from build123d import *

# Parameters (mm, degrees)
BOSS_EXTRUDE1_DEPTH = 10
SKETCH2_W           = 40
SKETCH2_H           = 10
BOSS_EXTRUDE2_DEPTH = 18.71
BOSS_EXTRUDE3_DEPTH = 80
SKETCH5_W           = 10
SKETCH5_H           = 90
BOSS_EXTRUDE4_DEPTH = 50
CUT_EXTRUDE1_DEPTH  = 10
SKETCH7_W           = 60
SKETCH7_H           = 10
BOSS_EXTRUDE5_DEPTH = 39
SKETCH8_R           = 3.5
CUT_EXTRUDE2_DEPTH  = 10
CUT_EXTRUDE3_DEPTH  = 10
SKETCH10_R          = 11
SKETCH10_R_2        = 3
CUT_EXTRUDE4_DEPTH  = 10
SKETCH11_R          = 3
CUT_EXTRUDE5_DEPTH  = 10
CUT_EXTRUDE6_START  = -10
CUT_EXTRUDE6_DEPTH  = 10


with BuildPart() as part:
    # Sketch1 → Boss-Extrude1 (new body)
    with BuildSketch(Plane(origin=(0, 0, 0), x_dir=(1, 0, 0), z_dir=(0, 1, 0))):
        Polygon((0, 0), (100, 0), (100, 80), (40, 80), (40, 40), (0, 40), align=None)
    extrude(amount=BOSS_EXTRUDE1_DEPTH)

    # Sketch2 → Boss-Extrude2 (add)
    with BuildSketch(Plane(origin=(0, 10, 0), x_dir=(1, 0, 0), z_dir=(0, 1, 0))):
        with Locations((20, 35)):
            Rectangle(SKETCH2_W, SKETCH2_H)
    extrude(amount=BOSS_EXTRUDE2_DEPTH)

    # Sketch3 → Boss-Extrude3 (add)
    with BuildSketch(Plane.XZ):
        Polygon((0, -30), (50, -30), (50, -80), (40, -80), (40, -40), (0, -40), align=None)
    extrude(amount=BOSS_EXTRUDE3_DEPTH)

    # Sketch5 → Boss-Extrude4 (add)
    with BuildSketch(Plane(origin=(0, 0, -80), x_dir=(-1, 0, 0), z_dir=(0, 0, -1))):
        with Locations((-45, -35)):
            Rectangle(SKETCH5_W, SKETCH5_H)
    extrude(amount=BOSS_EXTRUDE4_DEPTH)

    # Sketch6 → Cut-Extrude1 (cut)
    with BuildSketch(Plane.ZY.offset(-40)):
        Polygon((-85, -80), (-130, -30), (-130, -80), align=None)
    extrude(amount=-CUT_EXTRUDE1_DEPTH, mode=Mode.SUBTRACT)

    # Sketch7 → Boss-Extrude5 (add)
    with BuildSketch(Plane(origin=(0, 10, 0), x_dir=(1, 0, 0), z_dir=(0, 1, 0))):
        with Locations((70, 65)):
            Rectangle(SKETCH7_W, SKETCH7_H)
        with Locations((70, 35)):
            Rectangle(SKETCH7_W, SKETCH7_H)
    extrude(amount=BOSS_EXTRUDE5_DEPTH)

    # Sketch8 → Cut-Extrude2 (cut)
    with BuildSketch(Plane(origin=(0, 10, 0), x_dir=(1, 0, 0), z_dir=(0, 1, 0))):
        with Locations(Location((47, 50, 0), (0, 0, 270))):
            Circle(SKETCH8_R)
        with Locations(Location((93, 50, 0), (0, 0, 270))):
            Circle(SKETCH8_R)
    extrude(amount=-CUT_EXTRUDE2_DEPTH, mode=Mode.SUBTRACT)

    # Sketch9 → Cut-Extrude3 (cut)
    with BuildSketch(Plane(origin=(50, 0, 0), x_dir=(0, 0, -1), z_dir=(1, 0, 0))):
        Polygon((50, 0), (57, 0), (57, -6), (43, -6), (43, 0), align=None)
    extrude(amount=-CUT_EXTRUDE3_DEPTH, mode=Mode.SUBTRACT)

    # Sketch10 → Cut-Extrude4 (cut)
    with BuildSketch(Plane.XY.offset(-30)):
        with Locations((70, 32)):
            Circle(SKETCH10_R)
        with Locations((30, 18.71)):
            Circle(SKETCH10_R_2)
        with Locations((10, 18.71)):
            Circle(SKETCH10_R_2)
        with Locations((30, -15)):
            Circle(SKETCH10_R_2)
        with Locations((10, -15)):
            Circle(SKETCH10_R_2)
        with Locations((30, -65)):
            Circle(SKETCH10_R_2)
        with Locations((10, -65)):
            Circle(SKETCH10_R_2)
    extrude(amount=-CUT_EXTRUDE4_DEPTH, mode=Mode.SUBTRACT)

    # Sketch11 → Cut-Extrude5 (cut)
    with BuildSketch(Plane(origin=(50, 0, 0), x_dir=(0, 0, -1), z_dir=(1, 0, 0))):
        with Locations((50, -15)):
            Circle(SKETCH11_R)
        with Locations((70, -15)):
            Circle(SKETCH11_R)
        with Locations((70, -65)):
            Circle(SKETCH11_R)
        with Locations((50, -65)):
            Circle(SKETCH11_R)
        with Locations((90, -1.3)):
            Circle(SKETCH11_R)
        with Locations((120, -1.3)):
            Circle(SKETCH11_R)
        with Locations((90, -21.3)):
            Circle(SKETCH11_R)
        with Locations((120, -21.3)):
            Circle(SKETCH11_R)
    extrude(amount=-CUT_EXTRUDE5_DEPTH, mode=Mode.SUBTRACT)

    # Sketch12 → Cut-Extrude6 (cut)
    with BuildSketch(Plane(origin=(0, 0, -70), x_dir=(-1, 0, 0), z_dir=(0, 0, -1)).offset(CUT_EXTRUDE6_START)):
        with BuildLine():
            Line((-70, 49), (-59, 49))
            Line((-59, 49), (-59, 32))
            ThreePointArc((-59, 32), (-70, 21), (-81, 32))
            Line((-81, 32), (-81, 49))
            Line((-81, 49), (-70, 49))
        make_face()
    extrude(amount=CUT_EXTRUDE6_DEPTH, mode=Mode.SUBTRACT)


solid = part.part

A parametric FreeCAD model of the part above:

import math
import FreeCAD as App
import Part
import Sketcher

V = App.Vector


def add_polygon(sketch, points):
    """Adds a closed chain of lines whose ends are joined by coincident constraints."""
    first, n = sketch.GeometryCount, len(points)
    for a, b in zip(points, points[1:] + points[:1]):
        sketch.addGeometry(Part.LineSegment(App.Vector(*a, 0), App.Vector(*b, 0)), False)
    for i in range(n):
        sketch.addConstraint(Sketcher.Constraint("Coincident", first + i, 2, first + (i + 1) % n, 1))

doc = App.newDocument("Part")
body = doc.addObject("PartDesign::Body", "Body")

# Sketch on XZ plane
sketch1 = body.newObject("Sketcher::SketchObject", "Sketch")
sketch1.AttachmentSupport = (doc.getObject("XZ_Plane"), [""])
sketch1.MapMode = "FlatFace"
add_polygon(sketch1, [(0, 0), (100, 0), (100, -80), (40, -80), (40, -40), (0, -40)])  # lines 0-5
sketch1.addConstraint([
    Sketcher.Constraint("Horizontal", 0),
    Sketcher.Constraint("Vertical", 1),
    Sketcher.Constraint("Horizontal", 2),
    Sketcher.Constraint("Vertical", 3),
    Sketcher.Constraint("Horizontal", 4),
    Sketcher.Constraint("Vertical", 5),
    Sketcher.Constraint("Coincident", 5, 2, -1, 1),
    Sketcher.Constraint("Equal", 4, 3),
    Sketcher.Constraint("Equal", 3, 5),
    Sketcher.Constraint("DistanceX", 0, 1, 0, 2, 100.0),
    Sketcher.Constraint("DistanceX", 2, 2, 2, 1, 60.0),
])
pad1 = body.newObject("PartDesign::Pad", "Pad")
pad1.Profile = sketch1
pad1.Length = 10
pad1.Reversed = True

# Sketch on XZ plane
sketch2 = body.newObject("Sketcher::SketchObject", "Sketch001")
sketch2.AttachmentSupport = (doc.getObject("XZ_Plane"), [""])
sketch2.MapMode = "FlatFace"
sketch2.AttachmentOffset = App.Placement(V(0, 0, -10), App.Rotation())
add_polygon(sketch2, [(0, -40), (0, -30), (40, -30), (40, -40)])  # lines 0-3
sketch2.addConstraint([
    Sketcher.Constraint("Vertical", 0),
    Sketcher.Constraint("Horizontal", 1),
    Sketcher.Constraint("Vertical", 2),
    Sketcher.Constraint("Horizontal", 3),
    Sketcher.Constraint("PointOnObject", 0, 2, -2),
    Sketcher.Constraint("DistanceX", 1, 1, 1, 2, 40.0),
    Sketcher.Constraint("DistanceY", 0, 1, 0, 2, 10.0),
    Sketcher.Constraint("DistanceY", 0, 2, -1, 1, 30.0),
])
pad2 = body.newObject("PartDesign::Pad", "Pad001")
pad2.Profile = sketch2
pad2.Length = 18.71
pad2.Reversed = True

# Sketch on XZ plane
sketch3 = body.newObject("Sketcher::SketchObject", "Sketch002")
sketch3.AttachmentSupport = (doc.getObject("XZ_Plane"), [""])
sketch3.MapMode = "FlatFace"
add_polygon(sketch3, [(50, -30), (0, -30), (0, -40), (40, -40), (40, -80), (50, -80)])  # lines 0-5
sketch3.addConstraint([
    Sketcher.Constraint("Horizontal", 0),
    Sketcher.Constraint("Vertical", 1),
    Sketcher.Constraint("Horizontal", 2),
    Sketcher.Constraint("Vertical", 3),
    Sketcher.Constraint("Horizontal", 4),
    Sketcher.Constraint("Vertical", 5),
    Sketcher.Constraint("PointOnObject", 0, 2, -2),
    Sketcher.Constraint("Equal", 4, 1),
    Sketcher.Constraint("Equal", 2, 3),
    Sketcher.Constraint("DistanceX", 0, 2, 0, 1, 50.0),
    Sketcher.Constraint("DistanceX", 2, 1, 2, 2, 40.0),
    Sketcher.Constraint("DistanceY", 0, 2, -1, 1, 30.0),
])
pad3 = body.newObject("PartDesign::Pad", "Pad002")
pad3.Profile = sketch3
pad3.Length = 80

# Sketch on XY plane
sketch4 = body.newObject("Sketcher::SketchObject", "Sketch003")
sketch4.AttachmentSupport = (doc.getObject("XY_Plane"), [""])
sketch4.MapMode = "FlatFace"
sketch4.AttachmentOffset = App.Placement(V(0, 0, -80), App.Rotation())
add_polygon(sketch4, [(50, 10), (50, -80), (40, -80), (40, 10)])  # lines 0-3
sketch4.addConstraint([
    Sketcher.Constraint("Vertical", 0),
    Sketcher.Constraint("Horizontal", 1),
    Sketcher.Constraint("Vertical", 2),
    Sketcher.Constraint("Horizontal", 3),
    Sketcher.Constraint("DistanceX", 1, 2, 1, 1, 10.0),
    Sketcher.Constraint("DistanceY", 0, 2, 0, 1, 90.0),
    Sketcher.Constraint("DistanceX", -1, 1, 0, 2, 50.0),
    Sketcher.Constraint("DistanceY", 0, 2, -1, 1, 80.0),
])
pad4 = body.newObject("PartDesign::Pad", "Pad003")
pad4.Profile = sketch4
pad4.Length = 50
pad4.Reversed = True

# Sketch on YZ plane
sketch5 = body.newObject("Sketcher::SketchObject", "Sketch004")
sketch5.AttachmentSupport = (doc.getObject("YZ_Plane"), [""])
sketch5.MapMode = "FlatFace"
sketch5.AttachmentOffset = App.Placement(V(0, 0, 40), App.Rotation())
add_polygon(sketch5, [(-80, -85), (-30, -130), (-80, -130)])  # lines 0-2
sketch5.addConstraint([
    Sketcher.Constraint("Horizontal", 1),
    Sketcher.Constraint("Vertical", 2),
    Sketcher.Constraint("DistanceX", 1, 2, 1, 1, 50.0),
    Sketcher.Constraint("DistanceY", 2, 1, 2, 2, 45.0),
    Sketcher.Constraint("DistanceX", 0, 2, -1, 1, 30.0),
    Sketcher.Constraint("DistanceY", 0, 2, -1, 1, 130.0),
])
pocket1 = body.newObject("PartDesign::Pocket", "Pocket")
pocket1.Profile = sketch5
pocket1.Length = 10
pocket1.Reversed = True

# Sketch on XZ plane
sketch6 = body.newObject("Sketcher::SketchObject", "Sketch005")
sketch6.AttachmentSupport = (doc.getObject("XZ_Plane"), [""])
sketch6.MapMode = "FlatFace"
sketch6.AttachmentOffset = App.Placement(V(0, 0, -10), App.Rotation())
add_polygon(sketch6, [(40, -70), (40, -60), (100, -60), (100, -70)])  # lines 0-3
add_polygon(sketch6, [(40, -40), (40, -30), (100, -30), (100, -40)])  # lines 4-7
sketch6.addConstraint([
    Sketcher.Constraint("Vertical", 0),
    Sketcher.Constraint("Horizontal", 1),
    Sketcher.Constraint("Vertical", 2),
    Sketcher.Constraint("Horizontal", 3),
    Sketcher.Constraint("Vertical", 4),
    Sketcher.Constraint("Horizontal", 5),
    Sketcher.Constraint("Vertical", 6),
    Sketcher.Constraint("Horizontal", 7),
    Sketcher.Constraint("Vertical", 3, 2, 4, 2),
    Sketcher.Constraint("Vertical", 2, 2, 5, 2),
    Sketcher.Constraint("Equal", 2, 4),
    Sketcher.Constraint("DistanceX", 1, 1, 1, 2, 60.0),
    Sketcher.Constraint("DistanceY", 0, 1, 0, 2, 10.0),
    Sketcher.Constraint("DistanceX", -1, 1, 0, 2, 40.0),
    Sketcher.Constraint("DistanceY", 0, 2, -1, 1, 60.0),
    Sketcher.Constraint("DistanceY", 4, 2, -1, 1, 30.0),
])
pad5 = body.newObject("PartDesign::Pad", "Pad004")
pad5.Profile = sketch6
pad5.Length = 39
pad5.Reversed = True

# Sketch on XZ plane
sketch7 = body.newObject("Sketcher::SketchObject", "Sketch006")
sketch7.AttachmentSupport = (doc.getObject("XZ_Plane"), [""])
sketch7.MapMode = "FlatFace"
sketch7.AttachmentOffset = App.Placement(V(0, 0, -10), App.Rotation())
sketch7.addGeometry([
    Part.Circle(V(47, -50, 0), V(0, 0, 1), 3.5),
    Part.Circle(V(93, -50, 0), V(0, 0, 1), 3.5),
], False)
sketch7.addConstraint([
    Sketcher.Constraint("Equal", 0, 1),
    Sketcher.Constraint("Horizontal", 0, 3, 1, 3),
    Sketcher.Constraint("Diameter", 0, 7.0),
    Sketcher.Constraint("DistanceX", -1, 1, 0, 3, 47.0),
    Sketcher.Constraint("DistanceY", 0, 3, -1, 1, 50.0),
    Sketcher.Constraint("DistanceX", -1, 1, 1, 3, 93.0),
])
pocket2 = body.newObject("PartDesign::Pocket", "Pocket001")
pocket2.Profile = sketch7
pocket2.Length = 10
pocket2.Reversed = True

# Sketch on YZ plane
sketch8 = body.newObject("Sketcher::SketchObject", "Sketch007")
sketch8.AttachmentSupport = (doc.getObject("YZ_Plane"), [""])
sketch8.MapMode = "FlatFace"
sketch8.AttachmentOffset = App.Placement(V(0, 0, 50), App.Rotation())
add_polygon(sketch8, [(0, -57), (0, -43), (-6, -43), (-6, -57)])  # lines 0-3
sketch8.addConstraint([
    Sketcher.Constraint("Vertical", 0),
    Sketcher.Constraint("Horizontal", 1),
    Sketcher.Constraint("Vertical", 2),
    Sketcher.Constraint("Horizontal", 3),
    Sketcher.Constraint("PointOnObject", 0, 2, -2),
    Sketcher.Constraint("DistanceX", 1, 2, 1, 1, 6.0),
    Sketcher.Constraint("DistanceY", 0, 1, 0, 2, 14.0),
    Sketcher.Constraint("DistanceY", 0, 2, -1, 1, 43.0),
])
pocket3 = body.newObject("PartDesign::Pocket", "Pocket002")
pocket3.Profile = sketch8
pocket3.Length = 10

# Sketch on XY plane
sketch9 = body.newObject("Sketcher::SketchObject", "Sketch008")
sketch9.AttachmentSupport = (doc.getObject("XY_Plane"), [""])
sketch9.MapMode = "FlatFace"
sketch9.AttachmentOffset = App.Placement(V(0, 0, -30), App.Rotation())
sketch9.addGeometry([
    Part.Circle(V(70, 32, 0), V(0, 0, 1), 11),  # 0
    Part.Circle(V(30, 18.71, 0), V(0, 0, 1), 3),  # 1
    Part.Circle(V(10, 18.71, 0), V(0, 0, 1), 3),  # 2
    Part.Circle(V(30, -15, 0), V(0, 0, 1), 3),  # 3
    Part.Circle(V(10, -15, 0), V(0, 0, 1), 3),  # 4
    Part.Circle(V(30, -65, 0), V(0, 0, 1), 3),  # 5
    Part.Circle(V(10, -65, 0), V(0, 0, 1), 3),  # 6
], False)
sketch9.addConstraint([
    Sketcher.Constraint("Equal", 1, 2),
    Sketcher.Constraint("Equal", 2, 3),
    Sketcher.Constraint("Equal", 3, 4),
    Sketcher.Constraint("Equal", 4, 5),
    Sketcher.Constraint("Equal", 5, 6),
    Sketcher.Constraint("Horizontal", 1, 3, 2, 3),
    Sketcher.Constraint("Horizontal", 3, 3, 4, 3),
    Sketcher.Constraint("Horizontal", 5, 3, 6, 3),
    Sketcher.Constraint("Vertical", 1, 3, 3, 3),
    Sketcher.Constraint("Vertical", 2, 3, 4, 3),
    Sketcher.Constraint("Vertical", 3, 3, 5, 3),
    Sketcher.Constraint("Vertical", 4, 3, 6, 3),
    Sketcher.Constraint("Diameter", 0, 22.0),
    Sketcher.Constraint("Diameter", 1, 6.0),
    Sketcher.Constraint("DistanceX", -1, 1, 0, 3, 70.0),
    Sketcher.Constraint("DistanceY", -1, 1, 0, 3, 32.0),
    Sketcher.Constraint("DistanceX", -1, 1, 1, 3, 30.0),
    Sketcher.Constraint("DistanceX", -1, 1, 2, 3, 10.0),
    Sketcher.Constraint("DistanceY", 3, 3, -1, 1, 15.0),
    Sketcher.Constraint("DistanceY", 5, 3, -1, 1, 65.0),
    Sketcher.Constraint("DistanceY", -1, 1, 1, 3, 18.71),
])
pocket4 = body.newObject("PartDesign::Pocket", "Pocket003")
pocket4.Profile = sketch9
pocket4.Length = 10

# Sketch on YZ plane
sketch10 = body.newObject("Sketcher::SketchObject", "Sketch009")
sketch10.AttachmentSupport = (doc.getObject("YZ_Plane"), [""])
sketch10.MapMode = "FlatFace"
sketch10.AttachmentOffset = App.Placement(V(0, 0, 50), App.Rotation())
sketch10.addGeometry([
    Part.Circle(V(-15, -50, 0), V(0, 0, 1), 3),  # 0
    Part.Circle(V(-15, -70, 0), V(0, 0, 1), 3),  # 1
    Part.Circle(V(-65, -70, 0), V(0, 0, 1), 3),  # 2
    Part.Circle(V(-65, -50, 0), V(0, 0, 1), 3),  # 3
    Part.Circle(V(-1.3, -90, 0), V(0, 0, 1), 3),  # 4
    Part.Circle(V(-1.3, -120, 0), V(0, 0, 1), 3),  # 5
    Part.Circle(V(-21.3, -90, 0), V(0, 0, 1), 3),  # 6
    Part.Circle(V(-21.3, -120, 0), V(0, 0, 1), 3),  # 7
], False)
sketch10.addConstraint([
    Sketcher.Constraint("Equal", 0, 1),
    Sketcher.Constraint("Equal", 1, 2),
    Sketcher.Constraint("Equal", 2, 3),
    Sketcher.Constraint("Equal", 3, 4),
    Sketcher.Constraint("Equal", 4, 5),
    Sketcher.Constraint("Equal", 5, 6),
    Sketcher.Constraint("Equal", 6, 7),
    Sketcher.Constraint("Horizontal", 1, 3, 2, 3),
    Sketcher.Constraint("Horizontal", 0, 3, 3, 3),
    Sketcher.Constraint("Horizontal", 4, 3, 6, 3),
    Sketcher.Constraint("Horizontal", 5, 3, 7, 3),
    Sketcher.Constraint("Vertical", 0, 3, 1, 3),
    Sketcher.Constraint("Vertical", 2, 3, 3, 3),
    Sketcher.Constraint("Vertical", 4, 3, 5, 3),
    Sketcher.Constraint("Vertical", 6, 3, 7, 3),
    Sketcher.Constraint("Diameter", 0, 6.0),
    Sketcher.Constraint("DistanceX", 0, 3, -1, 1, 15.0),
    Sketcher.Constraint("DistanceY", 0, 3, -1, 1, 50.0),
    Sketcher.Constraint("DistanceY", 1, 3, -1, 1, 70.0),
    Sketcher.Constraint("DistanceX", 2, 3, -1, 1, 65.0),
    Sketcher.Constraint("DistanceY", 4, 3, -1, 1, 90.0),
    Sketcher.Constraint("DistanceY", 5, 3, -1, 1, 120.0),
    Sketcher.Constraint("DistanceX", 6, 3, 4, 3, 20.0),
    Sketcher.Constraint("DistanceX", 4, 3, -1, 1, 1.3),
])
pocket5 = body.newObject("PartDesign::Pocket", "Pocket004")
pocket5.Profile = sketch10
pocket5.Length = 10

# Sketch on XY plane
sketch11 = body.newObject("Sketcher::SketchObject", "Sketch010")
sketch11.AttachmentSupport = (doc.getObject("XY_Plane"), [""])
sketch11.MapMode = "FlatFace"
sketch11.AttachmentOffset = App.Placement(V(0, 0, -60), App.Rotation())
sketch11.addGeometry([
    Part.LineSegment(V(59, 32, 0), V(59, 49, 0)),
    Part.LineSegment(V(59, 49, 0), V(81, 49, 0)),
    Part.LineSegment(V(81, 49, 0), V(81, 32, 0)),
    Part.ArcOfCircle(Part.Circle(V(70, 32, 0), V(0, 0, 1), 11), math.radians(180), math.radians(360)),
], False)
sketch11.addConstraint([
    Sketcher.Constraint("Coincident", 0, 2, 1, 1),
    Sketcher.Constraint("Coincident", 1, 2, 2, 1),
    Sketcher.Constraint("Tangent", 2, 2, 3, 2),
    Sketcher.Constraint("Tangent", 3, 1, 0, 1),
    Sketcher.Constraint("Vertical", 0),
    Sketcher.Constraint("Horizontal", 1),
    Sketcher.Constraint("Vertical", 2),
    Sketcher.Constraint("Radius", 3, 11.0),
    Sketcher.Constraint("DistanceY", 0, 1, 0, 2, 17.0),
    Sketcher.Constraint("DistanceX", -1, 1, 3, 3, 70.0),
    Sketcher.Constraint("DistanceY", -1, 1, 3, 3, 32.0),
])
pocket6 = body.newObject("PartDesign::Pocket", "Pocket005")
pocket6.Profile = sketch11
pocket6.Length = 10

doc.recompute()
